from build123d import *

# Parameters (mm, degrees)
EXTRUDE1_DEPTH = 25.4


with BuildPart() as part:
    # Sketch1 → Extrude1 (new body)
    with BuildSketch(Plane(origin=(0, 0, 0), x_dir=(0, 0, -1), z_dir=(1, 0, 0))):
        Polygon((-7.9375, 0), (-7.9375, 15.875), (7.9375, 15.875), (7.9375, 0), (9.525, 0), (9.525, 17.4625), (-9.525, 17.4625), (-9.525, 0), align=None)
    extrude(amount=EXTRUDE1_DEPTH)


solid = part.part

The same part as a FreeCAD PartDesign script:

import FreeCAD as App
import Part
import Sketcher
from FreeCAD import Vector
Q = App.Units.Quantity


def add_polygon(sketch, points):
    """Adds a closed chain of lines whose ends are joined by coincident constraints."""
    first, n = sketch.GeometryCount, len(points)
    for a, b in zip(points, points[1:] + points[:1]):
        sketch.addGeometry(Part.LineSegment(App.Vector(*a, 0), App.Vector(*b, 0)), False)
    for i in range(n):
        sketch.addConstraint(Sketcher.Constraint("Coincident", first + i, 2, first + (i + 1) % n, 1))

doc = App.newDocument("Part")
body = doc.addObject("PartDesign::Body", "Body")

# Sketch on YZ plane
sketch1 = doc.addObject("Sketcher::SketchObject", "Sketch")
body.addObject(sketch1)
sketch1.AttachmentSupport = (doc.YZ_Plane, [""])
sketch1.MapMode = "FlatFace"
add_polygon(sketch1, [(0, 7.9), (15.9, 7.9), (15.9, -7.9), (0, -7.9), (0, -9.5), (17.5, -9.5), (17.5, 9.5), (0, 9.5)])  # lines 0-7
sketch1.addConstraint(Sketcher.Constraint("Horizontal", 0))
sketch1.addConstraint(Sketcher.Constraint("Vertical", 1))
sketch1.addConstraint(Sketcher.Constraint("Horizontal", 2))
sketch1.addConstraint(Sketcher.Constraint("Vertical", 3))
sketch1.addConstraint(Sketcher.Constraint("Horizontal", 4))
sketch1.addConstraint(Sketcher.Constraint("Vertical", 5))
sketch1.addConstraint(Sketcher.Constraint("Horizontal", 6))
sketch1.addConstraint(Sketcher.Constraint("Vertical", 7))
sketch1.addConstraint(Sketcher.Constraint("Symmetric", 3, 2, 6, 2, -1, 1))
sketch1.addConstraint(Sketcher.Constraint("Symmetric", 2, 2, 7, 2, -1))
sketch1.addConstraint(Sketcher.Constraint("Equal", 2, 1))
sketch1.addConstraint(Sketcher.Constraint("DistanceY", 5, 1, 5, 2, Q("0.75 in")))
sketch1.addConstraint(Sketcher.Constraint("DistanceX", 0, 1, 0, 2, Q("0.625 in")))
sketch1.addConstraint(Sketcher.Constraint("DistanceX", 4, 1, 4, 2, Q("0.6875 in")))
pad1 = doc.addObject("PartDesign::Pad", "Pad")
body.addObject(pad1)
pad1.Profile = sketch1
pad1.Length = Q("1 in")

doc.recompute()
